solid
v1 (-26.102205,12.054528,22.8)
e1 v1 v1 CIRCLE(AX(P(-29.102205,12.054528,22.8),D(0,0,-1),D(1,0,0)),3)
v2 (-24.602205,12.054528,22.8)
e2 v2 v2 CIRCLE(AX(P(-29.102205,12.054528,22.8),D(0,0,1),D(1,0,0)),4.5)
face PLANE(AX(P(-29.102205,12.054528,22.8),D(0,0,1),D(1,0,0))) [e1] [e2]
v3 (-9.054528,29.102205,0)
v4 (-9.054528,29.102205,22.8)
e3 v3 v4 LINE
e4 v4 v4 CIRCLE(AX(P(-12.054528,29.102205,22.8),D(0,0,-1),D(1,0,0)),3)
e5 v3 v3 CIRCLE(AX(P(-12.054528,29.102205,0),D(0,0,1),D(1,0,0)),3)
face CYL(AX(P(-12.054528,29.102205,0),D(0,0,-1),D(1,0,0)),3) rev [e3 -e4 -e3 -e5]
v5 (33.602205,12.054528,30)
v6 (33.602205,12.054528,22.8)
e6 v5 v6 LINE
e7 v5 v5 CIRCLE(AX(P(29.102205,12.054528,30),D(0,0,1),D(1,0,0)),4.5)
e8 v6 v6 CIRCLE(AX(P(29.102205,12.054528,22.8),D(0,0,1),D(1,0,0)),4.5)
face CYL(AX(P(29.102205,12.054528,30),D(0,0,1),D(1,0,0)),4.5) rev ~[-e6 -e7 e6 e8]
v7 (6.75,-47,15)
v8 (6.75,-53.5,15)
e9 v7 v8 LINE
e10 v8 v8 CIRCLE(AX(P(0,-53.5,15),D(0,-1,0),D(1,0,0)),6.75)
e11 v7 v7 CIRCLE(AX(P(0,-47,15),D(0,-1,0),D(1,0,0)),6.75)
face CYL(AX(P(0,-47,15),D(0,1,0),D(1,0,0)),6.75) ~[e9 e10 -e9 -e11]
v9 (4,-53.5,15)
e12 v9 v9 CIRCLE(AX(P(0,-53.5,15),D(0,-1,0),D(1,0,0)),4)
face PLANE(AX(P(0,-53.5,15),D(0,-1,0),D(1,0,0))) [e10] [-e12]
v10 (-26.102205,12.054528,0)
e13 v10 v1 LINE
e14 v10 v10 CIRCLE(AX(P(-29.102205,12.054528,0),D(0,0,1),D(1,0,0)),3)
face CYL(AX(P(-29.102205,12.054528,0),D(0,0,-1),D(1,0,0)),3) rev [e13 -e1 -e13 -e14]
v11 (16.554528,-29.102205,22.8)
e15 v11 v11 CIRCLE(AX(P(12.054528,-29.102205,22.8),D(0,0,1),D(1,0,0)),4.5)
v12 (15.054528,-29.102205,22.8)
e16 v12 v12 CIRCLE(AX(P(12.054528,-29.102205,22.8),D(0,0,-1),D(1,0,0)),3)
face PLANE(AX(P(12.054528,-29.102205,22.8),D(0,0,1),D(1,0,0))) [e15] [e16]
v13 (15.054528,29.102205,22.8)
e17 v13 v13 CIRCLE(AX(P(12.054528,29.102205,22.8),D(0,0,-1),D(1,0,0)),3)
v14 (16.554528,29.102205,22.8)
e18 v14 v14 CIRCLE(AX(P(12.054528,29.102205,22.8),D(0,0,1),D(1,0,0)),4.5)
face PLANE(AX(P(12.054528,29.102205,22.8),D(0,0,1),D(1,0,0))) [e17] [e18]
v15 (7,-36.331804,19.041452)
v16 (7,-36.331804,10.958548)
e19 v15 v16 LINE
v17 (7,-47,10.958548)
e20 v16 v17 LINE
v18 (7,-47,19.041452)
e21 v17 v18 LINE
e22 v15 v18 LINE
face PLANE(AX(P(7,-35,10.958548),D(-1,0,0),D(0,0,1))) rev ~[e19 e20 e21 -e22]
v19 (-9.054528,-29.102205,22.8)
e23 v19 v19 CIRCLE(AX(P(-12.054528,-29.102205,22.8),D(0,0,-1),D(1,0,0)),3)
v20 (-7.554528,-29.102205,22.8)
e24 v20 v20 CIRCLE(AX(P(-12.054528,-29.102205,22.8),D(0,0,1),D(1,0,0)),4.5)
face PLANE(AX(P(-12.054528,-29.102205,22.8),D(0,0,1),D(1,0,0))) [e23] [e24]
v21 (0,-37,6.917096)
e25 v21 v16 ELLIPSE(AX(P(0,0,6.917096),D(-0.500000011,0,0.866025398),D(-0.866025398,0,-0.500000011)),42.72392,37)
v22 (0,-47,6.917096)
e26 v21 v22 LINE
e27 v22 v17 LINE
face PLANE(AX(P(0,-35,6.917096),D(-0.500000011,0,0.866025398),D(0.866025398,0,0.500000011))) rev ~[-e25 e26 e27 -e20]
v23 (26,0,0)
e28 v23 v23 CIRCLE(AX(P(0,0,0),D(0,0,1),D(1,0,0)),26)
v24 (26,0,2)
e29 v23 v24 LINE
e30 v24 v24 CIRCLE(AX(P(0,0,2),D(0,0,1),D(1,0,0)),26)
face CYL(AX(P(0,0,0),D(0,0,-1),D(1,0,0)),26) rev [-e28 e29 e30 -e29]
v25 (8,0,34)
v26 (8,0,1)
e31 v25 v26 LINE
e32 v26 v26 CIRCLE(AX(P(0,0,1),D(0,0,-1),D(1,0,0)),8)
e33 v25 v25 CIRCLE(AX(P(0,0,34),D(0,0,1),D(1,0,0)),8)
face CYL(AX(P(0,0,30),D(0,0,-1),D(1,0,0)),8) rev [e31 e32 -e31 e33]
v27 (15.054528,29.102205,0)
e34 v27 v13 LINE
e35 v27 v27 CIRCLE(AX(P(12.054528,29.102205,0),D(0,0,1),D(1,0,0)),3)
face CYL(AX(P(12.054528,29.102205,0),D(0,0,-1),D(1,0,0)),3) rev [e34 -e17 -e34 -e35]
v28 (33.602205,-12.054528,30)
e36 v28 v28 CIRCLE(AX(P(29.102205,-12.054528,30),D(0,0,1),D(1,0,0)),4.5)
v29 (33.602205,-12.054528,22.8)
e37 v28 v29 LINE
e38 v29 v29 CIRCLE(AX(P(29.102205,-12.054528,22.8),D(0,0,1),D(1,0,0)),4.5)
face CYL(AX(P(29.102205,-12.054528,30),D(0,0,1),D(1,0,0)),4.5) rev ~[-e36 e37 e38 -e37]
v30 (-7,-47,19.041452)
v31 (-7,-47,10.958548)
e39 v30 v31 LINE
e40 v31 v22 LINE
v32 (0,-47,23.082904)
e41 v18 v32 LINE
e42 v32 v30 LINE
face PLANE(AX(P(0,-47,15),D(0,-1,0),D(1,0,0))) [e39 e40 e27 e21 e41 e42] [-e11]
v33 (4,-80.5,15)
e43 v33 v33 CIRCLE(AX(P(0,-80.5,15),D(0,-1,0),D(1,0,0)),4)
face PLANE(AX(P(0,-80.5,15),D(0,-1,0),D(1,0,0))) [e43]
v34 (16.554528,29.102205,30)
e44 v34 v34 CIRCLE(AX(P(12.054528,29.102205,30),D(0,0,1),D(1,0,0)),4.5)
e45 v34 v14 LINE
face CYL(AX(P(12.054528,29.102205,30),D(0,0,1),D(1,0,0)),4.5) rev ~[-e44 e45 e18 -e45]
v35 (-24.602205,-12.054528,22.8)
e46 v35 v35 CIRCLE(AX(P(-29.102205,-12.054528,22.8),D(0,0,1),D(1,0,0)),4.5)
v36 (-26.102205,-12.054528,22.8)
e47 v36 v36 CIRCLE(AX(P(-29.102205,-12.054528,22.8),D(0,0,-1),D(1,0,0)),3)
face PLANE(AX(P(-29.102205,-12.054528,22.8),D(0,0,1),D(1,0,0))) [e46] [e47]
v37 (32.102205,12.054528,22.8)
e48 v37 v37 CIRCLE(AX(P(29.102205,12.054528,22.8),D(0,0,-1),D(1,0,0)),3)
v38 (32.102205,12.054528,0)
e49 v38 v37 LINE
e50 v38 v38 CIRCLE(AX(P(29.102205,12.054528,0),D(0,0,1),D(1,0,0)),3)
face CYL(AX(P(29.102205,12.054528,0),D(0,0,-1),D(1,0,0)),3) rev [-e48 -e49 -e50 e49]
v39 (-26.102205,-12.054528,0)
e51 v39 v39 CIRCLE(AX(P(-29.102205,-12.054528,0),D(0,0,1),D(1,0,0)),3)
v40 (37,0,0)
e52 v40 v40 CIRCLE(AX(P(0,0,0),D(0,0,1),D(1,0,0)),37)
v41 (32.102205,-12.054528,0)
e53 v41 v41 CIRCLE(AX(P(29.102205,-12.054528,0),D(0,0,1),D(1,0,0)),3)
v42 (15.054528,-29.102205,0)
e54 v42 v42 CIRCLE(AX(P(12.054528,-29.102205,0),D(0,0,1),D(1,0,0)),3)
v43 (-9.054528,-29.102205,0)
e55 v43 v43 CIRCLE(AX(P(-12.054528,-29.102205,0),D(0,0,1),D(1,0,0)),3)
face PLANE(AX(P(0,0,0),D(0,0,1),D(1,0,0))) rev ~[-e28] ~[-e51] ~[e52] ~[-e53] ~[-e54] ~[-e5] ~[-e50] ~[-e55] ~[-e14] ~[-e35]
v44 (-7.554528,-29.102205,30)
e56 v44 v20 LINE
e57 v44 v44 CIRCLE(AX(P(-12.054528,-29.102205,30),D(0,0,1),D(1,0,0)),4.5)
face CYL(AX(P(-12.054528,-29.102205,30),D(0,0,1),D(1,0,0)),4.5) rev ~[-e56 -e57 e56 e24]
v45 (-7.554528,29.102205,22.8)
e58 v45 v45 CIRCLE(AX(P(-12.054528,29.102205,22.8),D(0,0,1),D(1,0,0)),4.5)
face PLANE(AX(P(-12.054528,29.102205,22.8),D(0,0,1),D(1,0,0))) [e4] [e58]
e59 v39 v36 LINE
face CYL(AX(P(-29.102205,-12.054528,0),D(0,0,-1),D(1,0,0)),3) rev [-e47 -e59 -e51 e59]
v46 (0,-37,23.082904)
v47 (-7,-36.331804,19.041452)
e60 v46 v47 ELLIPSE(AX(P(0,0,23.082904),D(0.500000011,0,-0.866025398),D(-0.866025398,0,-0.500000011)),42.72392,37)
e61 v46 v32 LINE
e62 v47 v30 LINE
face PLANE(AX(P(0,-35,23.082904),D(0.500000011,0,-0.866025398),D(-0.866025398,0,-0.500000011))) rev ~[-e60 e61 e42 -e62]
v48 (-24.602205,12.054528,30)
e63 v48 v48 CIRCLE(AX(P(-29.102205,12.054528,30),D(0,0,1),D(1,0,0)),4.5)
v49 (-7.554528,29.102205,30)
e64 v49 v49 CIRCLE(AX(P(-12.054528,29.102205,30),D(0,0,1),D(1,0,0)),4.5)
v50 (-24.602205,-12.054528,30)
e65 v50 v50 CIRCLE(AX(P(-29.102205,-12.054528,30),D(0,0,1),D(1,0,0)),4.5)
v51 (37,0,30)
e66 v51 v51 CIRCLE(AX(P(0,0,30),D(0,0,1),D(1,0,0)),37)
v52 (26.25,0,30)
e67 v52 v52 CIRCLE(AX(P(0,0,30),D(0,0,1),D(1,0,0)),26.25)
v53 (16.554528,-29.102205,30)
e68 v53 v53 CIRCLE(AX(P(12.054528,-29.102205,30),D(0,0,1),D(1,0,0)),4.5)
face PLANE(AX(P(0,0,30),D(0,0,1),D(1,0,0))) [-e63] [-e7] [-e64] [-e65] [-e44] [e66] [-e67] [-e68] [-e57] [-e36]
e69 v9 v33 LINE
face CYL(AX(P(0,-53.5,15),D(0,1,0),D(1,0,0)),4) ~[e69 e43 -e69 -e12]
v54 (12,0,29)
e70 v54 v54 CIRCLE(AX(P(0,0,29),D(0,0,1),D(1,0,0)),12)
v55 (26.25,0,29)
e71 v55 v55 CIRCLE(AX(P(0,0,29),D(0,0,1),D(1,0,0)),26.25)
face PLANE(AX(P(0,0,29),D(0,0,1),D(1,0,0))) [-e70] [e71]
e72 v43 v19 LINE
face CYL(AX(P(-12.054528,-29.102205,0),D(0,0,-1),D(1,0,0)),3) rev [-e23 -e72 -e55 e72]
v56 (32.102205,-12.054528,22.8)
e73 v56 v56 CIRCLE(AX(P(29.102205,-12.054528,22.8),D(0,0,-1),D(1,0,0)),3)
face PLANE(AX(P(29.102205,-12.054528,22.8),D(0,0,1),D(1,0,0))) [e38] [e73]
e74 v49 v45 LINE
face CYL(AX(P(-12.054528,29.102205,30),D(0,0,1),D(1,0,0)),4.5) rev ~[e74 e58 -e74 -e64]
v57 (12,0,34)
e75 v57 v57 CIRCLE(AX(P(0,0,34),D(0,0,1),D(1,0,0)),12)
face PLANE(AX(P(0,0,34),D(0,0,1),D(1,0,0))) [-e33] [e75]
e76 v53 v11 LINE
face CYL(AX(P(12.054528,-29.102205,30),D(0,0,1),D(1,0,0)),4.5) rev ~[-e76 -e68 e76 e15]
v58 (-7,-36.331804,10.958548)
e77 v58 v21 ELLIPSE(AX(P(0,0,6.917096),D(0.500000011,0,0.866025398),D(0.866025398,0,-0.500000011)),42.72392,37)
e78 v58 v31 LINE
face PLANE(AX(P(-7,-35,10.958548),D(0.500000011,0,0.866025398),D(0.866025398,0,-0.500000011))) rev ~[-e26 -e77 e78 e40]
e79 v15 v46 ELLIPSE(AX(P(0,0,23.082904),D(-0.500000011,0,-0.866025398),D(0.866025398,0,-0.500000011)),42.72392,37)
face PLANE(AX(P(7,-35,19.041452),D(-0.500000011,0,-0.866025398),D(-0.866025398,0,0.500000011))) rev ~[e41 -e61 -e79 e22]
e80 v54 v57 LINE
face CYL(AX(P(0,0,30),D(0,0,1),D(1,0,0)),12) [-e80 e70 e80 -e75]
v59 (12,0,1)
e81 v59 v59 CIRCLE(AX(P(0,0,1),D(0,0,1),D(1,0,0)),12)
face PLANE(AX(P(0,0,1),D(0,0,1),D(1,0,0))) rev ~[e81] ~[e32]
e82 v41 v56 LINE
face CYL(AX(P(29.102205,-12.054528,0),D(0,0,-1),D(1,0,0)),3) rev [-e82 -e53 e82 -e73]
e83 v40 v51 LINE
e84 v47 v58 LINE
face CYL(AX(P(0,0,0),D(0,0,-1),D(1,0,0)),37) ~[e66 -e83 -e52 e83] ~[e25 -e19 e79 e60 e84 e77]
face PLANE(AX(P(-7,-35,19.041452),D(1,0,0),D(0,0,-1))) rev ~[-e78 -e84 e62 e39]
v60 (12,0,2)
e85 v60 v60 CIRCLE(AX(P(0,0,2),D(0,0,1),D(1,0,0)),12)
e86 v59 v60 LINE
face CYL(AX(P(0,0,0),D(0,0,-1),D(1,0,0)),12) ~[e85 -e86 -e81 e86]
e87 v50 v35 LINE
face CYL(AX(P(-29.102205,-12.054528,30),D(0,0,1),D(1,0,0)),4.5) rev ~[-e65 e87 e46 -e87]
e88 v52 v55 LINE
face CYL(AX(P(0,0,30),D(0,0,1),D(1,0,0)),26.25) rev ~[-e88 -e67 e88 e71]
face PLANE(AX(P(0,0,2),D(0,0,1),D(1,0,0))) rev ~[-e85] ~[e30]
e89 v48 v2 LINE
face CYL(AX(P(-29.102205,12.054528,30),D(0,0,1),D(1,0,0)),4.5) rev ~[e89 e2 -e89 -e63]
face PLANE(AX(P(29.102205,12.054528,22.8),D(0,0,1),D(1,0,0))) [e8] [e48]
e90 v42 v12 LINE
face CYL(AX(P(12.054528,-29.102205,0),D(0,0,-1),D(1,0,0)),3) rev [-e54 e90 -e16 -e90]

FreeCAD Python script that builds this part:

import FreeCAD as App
import Part
import Sketcher
Q = App.Units.Quantity


def add_polygon(sketch, points):
    """Adds a closed chain of lines whose ends are joined by coincident constraints."""
    first, n = sketch.GeometryCount, len(points)
    for a, b in zip(points, points[1:] + points[:1]):
        sketch.addGeometry(Part.LineSegment(App.Vector(*a, 0), App.Vector(*b, 0)), False)
    for i in range(n):
        sketch.addConstraint(Sketcher.Constraint("Coincident", first + i, 2, first + (i + 1) % n, 1))

doc = App.newDocument("Part")
body = doc.addObject("PartDesign::Body", "Body")

sketch1 = body.newObject("Sketcher::SketchObject", "Sketch")
sketch1.AttachmentSupport = (doc.getObject("XY_Plane"), [""])
sketch1.MapMode = "FlatFace"
sketch1.addGeometry([
    Part.Circle(App.Vector(0, 0, 0), App.Vector(0, 0, 1), 37),
    Part.Circle(App.Vector(-12.1, -29.1, 0), App.Vector(0, 0, 1), 3),
    Part.Circle(App.Vector(-29.1, -12.1, 0), App.Vector(0, 0, 1), 3),
    Part.Circle(App.Vector(12.1, -29.1, 0), App.Vector(0, 0, 1), 3),
    Part.Circle(App.Vector(29.1, -12.1, 0), App.Vector(0, 0, 1), 3),
    Part.Circle(App.Vector(-29.1, 12.1, 0), App.Vector(0, 0, 1), 3),
    Part.Circle(App.Vector(-12.1, 29.1, 0), App.Vector(0, 0, 1), 3),
    Part.Circle(App.Vector(0, 0, 0), App.Vector(0, 0, 1), 8),
    Part.Circle(App.Vector(29.1, 12.1, 0), App.Vector(0, 0, 1), 3),
    Part.Circle(App.Vector(12.1, 29.1, 0), App.Vector(0, 0, 1), 3),
], False)
sketch1.addConstraint([
    Sketcher.Constraint("Coincident", 0, 3, -1, 1),
    Sketcher.Constraint("Coincident", 7, 3, -1, 1),
    Sketcher.Constraint("Equal", 1, 2),
    Sketcher.Constraint("Equal", 2, 3),
    Sketcher.Constraint("Equal", 3, 4),
    Sketcher.Constraint("Equal", 4, 5),
    Sketcher.Constraint("Equal", 5, 6),
    Sketcher.Constraint("Equal", 6, 8),
    Sketcher.Constraint("Equal", 8, 9),
    Sketcher.Constraint("Symmetric", 4, 3, 5, 3, -1, 1),
    Sketcher.Constraint("Symmetric", 3, 3, 6, 3, -1, 1),
    Sketcher.Constraint("Symmetric", 2, 3, 8, 3, -1, 1),
    Sketcher.Constraint("Symmetric", 1, 3, 9, 3, -1, 1),
    Sketcher.Constraint("Symmetric", 1, 3, 3, 3, -2),
    Sketcher.Constraint("Symmetric", 2, 3, 4, 3, -2),
    Sketcher.Constraint("Diameter", 0, 74.0),
    Sketcher.Constraint("Diameter", 1, 6.0),
    Sketcher.Constraint("Diameter", 7, 16.0),
    Sketcher.Constraint("DistanceX", 2, 3, 4, 3, 58.20441),
    Sketcher.Constraint("DistanceY", 1, 3, 6, 3, 58.20441),
    Sketcher.Constraint("DistanceX", 1, 3, -1, 1, 12.054528),
    Sketcher.Constraint("DistanceY", 2, 3, -1, 1, 12.054528),
])
pad1 = body.newObject("PartDesign::Pad", "Pad")
pad1.Profile = sketch1
pad1.Length = 30

sketch2 = body.newObject("Sketcher::SketchObject", "Sketch001")
sketch2.AttachmentSupport = (doc.getObject("XY_Plane"), [""])
sketch2.MapMode = "FlatFace"
sketch2.AttachmentOffset = App.Placement(App.Vector(0, 0, 30), App.Rotation())
sketch2.addGeometry([
    Part.Circle(App.Vector(0, 0, 0), App.Vector(0, 0, 1), 12),
    Part.Circle(App.Vector(0, 0, 0), App.Vector(0, 0, 1), 8),
], False)
sketch2.addConstraint([
    Sketcher.Constraint("Coincident", 0, 3, -1, 1),
    Sketcher.Constraint("Coincident", 1, 3, -1, 1),
    Sketcher.Constraint("Diameter", 0, 24.0),
    Sketcher.Constraint("Diameter", 1, 16.0),
])
pad2 = body.newObject("PartDesign::Pad", "Pad001")
pad2.Profile = sketch2
pad2.Length = 4

sketch3 = body.newObject("Sketcher::SketchObject", "Sketch002")
sketch3.AttachmentSupport = (doc.getObject("XY_Plane"), [""])
sketch3.MapMode = "FlatFace"
sketch3.AttachmentOffset = App.Placement(App.Vector(0, 0, 30), App.Rotation())
sketch3.addGeometry([
    Part.Circle(App.Vector(-29.1, 12.1, 0), App.Vector(0, 0, 1), 4.5),
    Part.Circle(App.Vector(29.1, 12.1, 0), App.Vector(0, 0, 1), 4.5),
    Part.Circle(App.Vector(12.1, 29.1, 0), App.Vector(0, 0, 1), 4.5),
    Part.Circle(App.Vector(-12.1, 29.1, 0), App.Vector(0, 0, 1), 4.5),
    Part.Circle(App.Vector(12.1, -29.1, 0), App.Vector(0, 0, 1), 4.5),
    Part.Circle(App.Vector(-29.1, -12.1, 0), App.Vector(0, 0, 1), 4.5),
    Part.Circle(App.Vector(-12.1, -29.1, 0), App.Vector(0, 0, 1), 4.5),
    Part.Circle(App.Vector(29.1, -12.1, 0), App.Vector(0, 0, 1), 4.5),
], False)
sketch3.addConstraint([
    Sketcher.Constraint("Equal", 0, 1),
    Sketcher.Constraint("Equal", 1, 2),
    Sketcher.Constraint("Equal", 2, 3),
    Sketcher.Constraint("Equal", 3, 4),
    Sketcher.Constraint("Equal", 4, 5),
    Sketcher.Constraint("Equal", 5, 6),
    Sketcher.Constraint("Equal", 6, 7),
    Sketcher.Constraint("Symmetric", 3, 3, 4, 3, -1, 1),
    Sketcher.Constraint("Symmetric", 1, 3, 5, 3, -1, 1),
    Sketcher.Constraint("Symmetric", 2, 3, 6, 3, -1, 1),
    Sketcher.Constraint("Symmetric", 0, 3, 7, 3, -1, 1),
    Sketcher.Constraint("Symmetric", 0, 3, 1, 3, -2),
    Sketcher.Constraint("Symmetric", 2, 3, 3, 3, -2),
    Sketcher.Constraint("Diameter", 0, 9.0),
    Sketcher.Constraint("DistanceX", 0, 3, 1, 3, 58.20441),
    Sketcher.Constraint("DistanceY", 4, 3, 2, 3, 58.20441),
    Sketcher.Constraint("DistanceY", -1, 1, 0, 3, 12.054528),
    Sketcher.Constraint("DistanceX", -1, 1, 2, 3, 12.054528),
])
pocket1 = body.newObject("PartDesign::Pocket", "Pocket")
pocket1.Profile = sketch3
pocket1.Length = 7.2

sketch4 = body.newObject("Sketcher::SketchObject", "Sketch003")
sketch4.AttachmentSupport = (doc.getObject("XZ_Plane"), [""])
sketch4.MapMode = "FlatFace"
sketch4.AttachmentOffset = App.Placement(App.Vector(0, 0, 35), App.Rotation())
add_polygon(sketch4, [(0, 23), (-7, 19), (-7, 11), (0, 7), (7, 11), (7, 19)])
sketch4.addConstraint([
    Sketcher.Constraint("Vertical", 1),
    Sketcher.Constraint("Vertical", 4),
    Sketcher.Constraint("Symmetric", 1, 2, 3, 2, -2),
    Sketcher.Constraint("PointOnObject", 2, 2, -2),
    Sketcher.Constraint("PointOnObject", 5, 2, -2),
    Sketcher.Constraint("Parallel", 0, 3),
    Sketcher.Constraint("Parallel", 2, 5),
    Sketcher.Constraint("Angle", 0, Q("-149.999999 deg")),
    Sketcher.Constraint("DistanceX", 0, 2, -1, 1, 7.0),
    Sketcher.Constraint("DistanceY", 1, 2, 1, 1, 8.082904),
    Sketcher.Constraint("DistanceY", -1, 1, 0, 2, 19.041452),
])
pad3 = body.newObject("PartDesign::Pad", "Pad002")
pad3.Profile = sketch4
pad3.Length = 12

sketch5 = body.newObject("Sketcher::SketchObject", "Sketch004")
sketch5.AttachmentSupport = (doc.getObject("XZ_Plane"), [""])
sketch5.MapMode = "FlatFace"
sketch5.AttachmentOffset = App.Placement(App.Vector(0, 0, 47), App.Rotation())
sketch5.addGeometry(Part.Circle(App.Vector(0, 15, 0), App.Vector(0, 0, 1), 7), False)
sketch5.addConstraint([
    Sketcher.Constraint("PointOnObject", 0, 3, -2),
    Sketcher.Constraint("Diameter", 0, 13.5),
    Sketcher.Constraint("DistanceY", -1, 1, 0, 3, 15.0),
])
pad4 = body.newObject("PartDesign::Pad", "Pad003")
pad4.Profile = sketch5
pad4.Length = 6.5

sketch6 = body.newObject("Sketcher::SketchObject", "Sketch005")
sketch6.AttachmentSupport = (doc.getObject("XZ_Plane"), [""])
sketch6.MapMode = "FlatFace"
sketch6.AttachmentOffset = App.Placement(App.Vector(0, 0, 53.5), App.Rotation())
sketch6.addGeometry(Part.Circle(App.Vector(0, 15, 0), App.Vector(0, 0, 1), 4), False)
sketch6.addConstraint([
    Sketcher.Constraint("PointOnObject", 0, 3, -2),
    Sketcher.Constraint("Diameter", 0, 8.0),
    Sketcher.Constraint("DistanceY", -1, 1, 0, 3, 15.0),
])
pad5 = body.newObject("PartDesign::Pad", "Pad004")
pad5.Profile = sketch6
pad5.Length = 27

sketch7 = body.newObject("Sketcher::SketchObject", "Sketch006")
sketch7.AttachmentSupport = (doc.getObject("XY_Plane"), [""])
sketch7.MapMode = "FlatFace"
sketch7.AttachmentOffset = App.Placement(App.Vector(0, 0, 30), App.Rotation())
sketch7.addGeometry([
    Part.Circle(App.Vector(0, 0, 0), App.Vector(0, 0, 1), 26),
    Part.Circle(App.Vector(0, 0, 0), App.Vector(0, 0, 1), 12),
], False)
sketch7.addConstraint([
    Sketcher.Constraint("Coincident", 0, 3, -1, 1),
    Sketcher.Constraint("Coincident", 1, 3, -1, 1),
    Sketcher.Constraint("Diameter", 1, 24.0),
    Sketcher.Constraint("Diameter", 0, 52.5),
])
pocket2 = body.newObject("PartDesign::Pocket", "Pocket001")
pocket2.Profile = sketch7
pocket2.Length = 1

sketch8 = body.newObject("Sketcher::SketchObject", "Sketch007")
sketch8.AttachmentSupport = (doc.getObject("XY_Plane"), [""])
sketch8.MapMode = "FlatFace"
sketch8.addGeometry([
    Part.Circle(App.Vector(0, 0, 0), App.Vector(0, 0, 1), 26),
    Part.Circle(App.Vector(0, 0, 0), App.Vector(0, 0, 1), 12),
], False)
sketch8.addConstraint([
    Sketcher.Constraint("Coincident", 0, 3, -1, 1),
    Sketcher.Constraint("Coincident", 1, 3, -1, 1),
    Sketcher.Constraint("Diameter", 0, 52.0),
    Sketcher.Constraint("Diameter", 1, 24.0),
])
pocket3 = body.newObject("PartDesign::Pocket", "Pocket002")
pocket3.Profile = sketch8
pocket3.Length = 2
pocket3.Reversed = True

sketch9 = body.newObject("Sketcher::SketchObject", "Sketch008")
sketch9.AttachmentSupport = (doc.getObject("XY_Plane"), [""])
sketch9.MapMode = "FlatFace"
sketch9.addGeometry(Part.Circle(App.Vector(0, 0, 0), App.Vector(0, 0, 1), 12), False)
sketch9.addConstraint([
    Sketcher.Constraint("Coincident", 0, 3, -1, 1),
    Sketcher.Constraint("Diameter", 0, 24.0),
])
pocket4 = body.newObject("PartDesign::Pocket", "Pocket003")
pocket4.Profile = sketch9
pocket4.Length = 1
pocket4.Reversed = True

doc.recompute()
